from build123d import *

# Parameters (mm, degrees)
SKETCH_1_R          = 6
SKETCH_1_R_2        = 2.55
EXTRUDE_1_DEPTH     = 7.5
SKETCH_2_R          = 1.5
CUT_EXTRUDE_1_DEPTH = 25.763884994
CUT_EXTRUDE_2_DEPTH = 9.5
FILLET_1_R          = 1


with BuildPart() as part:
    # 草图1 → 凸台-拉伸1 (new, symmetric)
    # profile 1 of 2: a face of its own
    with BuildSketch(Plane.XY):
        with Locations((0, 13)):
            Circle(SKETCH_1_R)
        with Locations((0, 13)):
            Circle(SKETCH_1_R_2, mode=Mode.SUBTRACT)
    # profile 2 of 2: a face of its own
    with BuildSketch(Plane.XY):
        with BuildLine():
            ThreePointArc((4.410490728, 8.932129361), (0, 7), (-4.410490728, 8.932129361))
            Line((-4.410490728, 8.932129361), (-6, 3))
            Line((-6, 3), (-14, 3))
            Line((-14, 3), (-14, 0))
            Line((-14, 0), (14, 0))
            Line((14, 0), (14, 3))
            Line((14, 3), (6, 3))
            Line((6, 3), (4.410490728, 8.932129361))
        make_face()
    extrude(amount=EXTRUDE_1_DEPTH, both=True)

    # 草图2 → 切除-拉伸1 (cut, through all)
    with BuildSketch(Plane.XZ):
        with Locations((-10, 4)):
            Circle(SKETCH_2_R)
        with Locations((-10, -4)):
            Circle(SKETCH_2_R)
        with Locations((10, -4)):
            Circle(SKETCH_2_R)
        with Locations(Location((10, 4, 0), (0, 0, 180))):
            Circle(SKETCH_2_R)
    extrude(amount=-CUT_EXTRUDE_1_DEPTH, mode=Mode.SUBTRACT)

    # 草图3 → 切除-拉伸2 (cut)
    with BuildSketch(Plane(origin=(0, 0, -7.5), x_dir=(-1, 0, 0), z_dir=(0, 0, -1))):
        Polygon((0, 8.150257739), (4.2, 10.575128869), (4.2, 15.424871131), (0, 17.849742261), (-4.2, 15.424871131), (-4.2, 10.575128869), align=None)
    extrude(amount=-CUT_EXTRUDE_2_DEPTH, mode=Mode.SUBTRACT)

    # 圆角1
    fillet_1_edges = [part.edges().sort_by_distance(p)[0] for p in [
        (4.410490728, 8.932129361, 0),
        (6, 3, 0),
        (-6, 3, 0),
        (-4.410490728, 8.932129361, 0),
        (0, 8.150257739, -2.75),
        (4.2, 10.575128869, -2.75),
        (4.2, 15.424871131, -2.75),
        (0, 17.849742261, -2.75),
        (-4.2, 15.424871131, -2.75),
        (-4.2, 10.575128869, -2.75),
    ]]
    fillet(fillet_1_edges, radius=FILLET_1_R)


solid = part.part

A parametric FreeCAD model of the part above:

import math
import FreeCAD as App
import Part
import Sketcher

V = App.Vector
Q = App.Units.Quantity


def edges_at(feature, points):
    """Names of the edges that pass closest to the given points."""
    edges = feature.Shape.Edges
    near = lambda p: min(range(len(edges)), key=lambda i: edges[i].distToShape(Part.Vertex(*p))[0])
    return sorted({f"Edge{near(p) + 1}" for p in points})


def add_polygon(sketch, points):
    """Adds a closed chain of lines whose ends are joined by coincident constraints."""
    first, n = sketch.GeometryCount, len(points)
    for a, b in zip(points, points[1:] + points[:1]):
        sketch.addGeometry(Part.LineSegment(App.Vector(*a, 0), App.Vector(*b, 0)), False)
    for i in range(n):
        sketch.addConstraint(Sketcher.Constraint("Coincident", first + i, 2, first + (i + 1) % n, 1))

doc = App.newDocument("Part")
body = doc.addObject("PartDesign::Body", "Body")

# Sketch on XY plane
sketch1 = doc.addObject("Sketcher::SketchObject", "Sketch")
body.addObject(sketch1)
sketch1.AttachmentSupport = (doc.XY_Plane, [""])
sketch1.MapMode = "FlatFace"
sketch1.addGeometry([
    Part.LineSegment(V(-4.4, 8.9, 0), V(-6, 3, 0)),  # 0
    Part.LineSegment(V(-6, 3, 0), V(-14, 3, 0)),  # 1
    Part.LineSegment(V(-14, 3, 0), V(-14, 0, 0)),  # 2
    Part.LineSegment(V(-14, 0, 0), V(14, 0, 0)),  # 3
    Part.LineSegment(V(14, 0, 0), V(14, 3, 0)),  # 4
    Part.LineSegment(V(14, 3, 0), V(6, 3, 0)),  # 5
    Part.LineSegment(V(6, 3, 0), V(4.4, 8.9, 0)),  # 6
    Part.ArcOfCircle(Part.Circle(V(0, 13, 0), V(0, 0, 1), 6), math.radians(-43), math.radians(223)),  # 7
    Part.Circle(V(0, 13, 0), V(0, 0, 1), 2.5),  # 8
], False)
sketch1.addConstraint([
    Sketcher.Constraint("Coincident", 0, 2, 1, 1),
    Sketcher.Constraint("Coincident", 1, 2, 2, 1),
    Sketcher.Constraint("Coincident", 2, 2, 3, 1),
    Sketcher.Constraint("Coincident", 3, 2, 4, 1),
    Sketcher.Constraint("Coincident", 4, 2, 5, 1),
    Sketcher.Constraint("Coincident", 5, 2, 6, 1),
    Sketcher.Constraint("Coincident", 6, 2, 7, 1),
    Sketcher.Constraint("Coincident", 7, 2, 0, 1),
    Sketcher.Constraint("Horizontal", 1),
    Sketcher.Constraint("Vertical", 2),
    Sketcher.Constraint("Horizontal", 3),
    Sketcher.Constraint("Vertical", 4),
    Sketcher.Constraint("Horizontal", 5),
    Sketcher.Constraint("Coincident", 8, 3, 7, 3),
    Sketcher.Constraint("Symmetric", 2, 2, 3, 2, -1, 1),
    Sketcher.Constraint("Symmetric", 0, 2, 5, 2, -2),
    Sketcher.Constraint("Symmetric", 6, 2, 7, 2, -2),
    Sketcher.Constraint("Radius", 7, 6.0),
    Sketcher.Constraint("Diameter", 8, 5.1),
    Sketcher.Constraint("DistanceX", 1, 2, 1, 1, 8.0),
    Sketcher.Constraint("DistanceX", 3, 1, 3, 2, 28.0),
    Sketcher.Constraint("DistanceY", 2, 2, 2, 1, 3.0),
    Sketcher.Constraint("Angle", 0, Q("-105 deg")),
    Sketcher.Constraint("DistanceY", -1, 1, 7, 3, 13.0),
])
pad1 = doc.addObject("PartDesign::Pad", "Pad")
body.addObject(pad1)
pad1.Profile = sketch1
pad1.Length = 15
pad1.Midplane = True

# Sketch on XZ plane
sketch2 = doc.addObject("Sketcher::SketchObject", "Sketch001")
body.addObject(sketch2)
sketch2.AttachmentSupport = (doc.XZ_Plane, [""])
sketch2.MapMode = "FlatFace"
sketch2.addGeometry([
    Part.Circle(V(-10, 4, 0), V(0, 0, 1), 1.5),
    Part.Circle(V(-10, -4, 0), V(0, 0, 1), 1.5),
    Part.Circle(V(10, -4, 0), V(0, 0, 1), 1.5),
    Part.Circle(V(10, 4, 0), V(0, 0, 1), 1.5),
], False)
sketch2.addConstraint([
    Sketcher.Constraint("Equal", 0, 1),
    Sketcher.Constraint("Equal", 1, 2),
    Sketcher.Constraint("Equal", 2, 3),
    Sketcher.Constraint("Symmetric", 0, 3, 2, 3, -1, 1),
    Sketcher.Constraint("Symmetric", 1, 3, 3, 3, -1, 1),
    Sketcher.Constraint("Symmetric", 1, 3, 2, 3, -2),
    Sketcher.Constraint("Diameter", 0, 3.0),
    Sketcher.Constraint("DistanceX", 0, 3, -1, 1, 10.0),
    Sketcher.Constraint("DistanceY", -1, 1, 0, 3, 4.0),
])
pocket1 = doc.addObject("PartDesign::Pocket", "Pocket")
body.addObject(pocket1)
pocket1.Profile = sketch2
pocket1.Type = "ThroughAll"

# Sketch on XY plane
sketch3 = doc.addObject("Sketcher::SketchObject", "Sketch002")
body.addObject(sketch3)
sketch3.AttachmentSupport = (doc.XY_Plane, [""])
sketch3.MapMode = "FlatFace"
sketch3.AttachmentOffset = App.Placement(V(0, 0, -7.5), App.Rotation())
add_polygon(sketch3, [(0, 8.2), (-4.2, 10.6), (-4.2, 15.4), (0, 17.8), (4.2, 15.4), (4.2, 10.6)])  # lines 0-5
sketch3.addConstraint([
    Sketcher.Constraint("Vertical", 1),
    Sketcher.Constraint("Vertical", 4),
    Sketcher.Constraint("Symmetric", 1, 2, 3, 2, -2),
    Sketcher.Constraint("PointOnObject", 2, 2, -2),
    Sketcher.Constraint("PointOnObject", 5, 2, -2),
    Sketcher.Constraint("Parallel", 0, 3),
    Sketcher.Constraint("Parallel", 2, 5),
    Sketcher.Constraint("Angle", 0, Q("150 deg")),
    Sketcher.Constraint("DistanceX", 0, 2, -1, 1, 4.2),
    Sketcher.Constraint("DistanceY", 1, 1, 1, 2, 4.849742),
    Sketcher.Constraint("DistanceY", -1, 1, 0, 2, 10.575129),
])
pocket2 = doc.addObject("PartDesign::Pocket", "Pocket001")
body.addObject(pocket2)
pocket2.Profile = sketch3
pocket2.Length = 9.5
pocket2.Reversed = True
doc.recompute()

fillet = doc.addObject("PartDesign::Fillet", "Fillet")
body.addObject(fillet)
fillet.Base = (pocket2, edges_at(pocket2, [
    (4.41, 8.932, 0),
    (6, 3, 0),
    (-6, 3, 0),
    (-4.41, 8.932, 0),
    (0, 8.15, -2.75),
    (4.2, 10.575, -2.75),
    (4.2, 15.425, -2.75),
    (0, 17.85, -2.75),
    (-4.2, 15.425, -2.75),
    (-4.2, 10.575, -2.75),
]))
fillet.Radius = 1

doc.recompute()
